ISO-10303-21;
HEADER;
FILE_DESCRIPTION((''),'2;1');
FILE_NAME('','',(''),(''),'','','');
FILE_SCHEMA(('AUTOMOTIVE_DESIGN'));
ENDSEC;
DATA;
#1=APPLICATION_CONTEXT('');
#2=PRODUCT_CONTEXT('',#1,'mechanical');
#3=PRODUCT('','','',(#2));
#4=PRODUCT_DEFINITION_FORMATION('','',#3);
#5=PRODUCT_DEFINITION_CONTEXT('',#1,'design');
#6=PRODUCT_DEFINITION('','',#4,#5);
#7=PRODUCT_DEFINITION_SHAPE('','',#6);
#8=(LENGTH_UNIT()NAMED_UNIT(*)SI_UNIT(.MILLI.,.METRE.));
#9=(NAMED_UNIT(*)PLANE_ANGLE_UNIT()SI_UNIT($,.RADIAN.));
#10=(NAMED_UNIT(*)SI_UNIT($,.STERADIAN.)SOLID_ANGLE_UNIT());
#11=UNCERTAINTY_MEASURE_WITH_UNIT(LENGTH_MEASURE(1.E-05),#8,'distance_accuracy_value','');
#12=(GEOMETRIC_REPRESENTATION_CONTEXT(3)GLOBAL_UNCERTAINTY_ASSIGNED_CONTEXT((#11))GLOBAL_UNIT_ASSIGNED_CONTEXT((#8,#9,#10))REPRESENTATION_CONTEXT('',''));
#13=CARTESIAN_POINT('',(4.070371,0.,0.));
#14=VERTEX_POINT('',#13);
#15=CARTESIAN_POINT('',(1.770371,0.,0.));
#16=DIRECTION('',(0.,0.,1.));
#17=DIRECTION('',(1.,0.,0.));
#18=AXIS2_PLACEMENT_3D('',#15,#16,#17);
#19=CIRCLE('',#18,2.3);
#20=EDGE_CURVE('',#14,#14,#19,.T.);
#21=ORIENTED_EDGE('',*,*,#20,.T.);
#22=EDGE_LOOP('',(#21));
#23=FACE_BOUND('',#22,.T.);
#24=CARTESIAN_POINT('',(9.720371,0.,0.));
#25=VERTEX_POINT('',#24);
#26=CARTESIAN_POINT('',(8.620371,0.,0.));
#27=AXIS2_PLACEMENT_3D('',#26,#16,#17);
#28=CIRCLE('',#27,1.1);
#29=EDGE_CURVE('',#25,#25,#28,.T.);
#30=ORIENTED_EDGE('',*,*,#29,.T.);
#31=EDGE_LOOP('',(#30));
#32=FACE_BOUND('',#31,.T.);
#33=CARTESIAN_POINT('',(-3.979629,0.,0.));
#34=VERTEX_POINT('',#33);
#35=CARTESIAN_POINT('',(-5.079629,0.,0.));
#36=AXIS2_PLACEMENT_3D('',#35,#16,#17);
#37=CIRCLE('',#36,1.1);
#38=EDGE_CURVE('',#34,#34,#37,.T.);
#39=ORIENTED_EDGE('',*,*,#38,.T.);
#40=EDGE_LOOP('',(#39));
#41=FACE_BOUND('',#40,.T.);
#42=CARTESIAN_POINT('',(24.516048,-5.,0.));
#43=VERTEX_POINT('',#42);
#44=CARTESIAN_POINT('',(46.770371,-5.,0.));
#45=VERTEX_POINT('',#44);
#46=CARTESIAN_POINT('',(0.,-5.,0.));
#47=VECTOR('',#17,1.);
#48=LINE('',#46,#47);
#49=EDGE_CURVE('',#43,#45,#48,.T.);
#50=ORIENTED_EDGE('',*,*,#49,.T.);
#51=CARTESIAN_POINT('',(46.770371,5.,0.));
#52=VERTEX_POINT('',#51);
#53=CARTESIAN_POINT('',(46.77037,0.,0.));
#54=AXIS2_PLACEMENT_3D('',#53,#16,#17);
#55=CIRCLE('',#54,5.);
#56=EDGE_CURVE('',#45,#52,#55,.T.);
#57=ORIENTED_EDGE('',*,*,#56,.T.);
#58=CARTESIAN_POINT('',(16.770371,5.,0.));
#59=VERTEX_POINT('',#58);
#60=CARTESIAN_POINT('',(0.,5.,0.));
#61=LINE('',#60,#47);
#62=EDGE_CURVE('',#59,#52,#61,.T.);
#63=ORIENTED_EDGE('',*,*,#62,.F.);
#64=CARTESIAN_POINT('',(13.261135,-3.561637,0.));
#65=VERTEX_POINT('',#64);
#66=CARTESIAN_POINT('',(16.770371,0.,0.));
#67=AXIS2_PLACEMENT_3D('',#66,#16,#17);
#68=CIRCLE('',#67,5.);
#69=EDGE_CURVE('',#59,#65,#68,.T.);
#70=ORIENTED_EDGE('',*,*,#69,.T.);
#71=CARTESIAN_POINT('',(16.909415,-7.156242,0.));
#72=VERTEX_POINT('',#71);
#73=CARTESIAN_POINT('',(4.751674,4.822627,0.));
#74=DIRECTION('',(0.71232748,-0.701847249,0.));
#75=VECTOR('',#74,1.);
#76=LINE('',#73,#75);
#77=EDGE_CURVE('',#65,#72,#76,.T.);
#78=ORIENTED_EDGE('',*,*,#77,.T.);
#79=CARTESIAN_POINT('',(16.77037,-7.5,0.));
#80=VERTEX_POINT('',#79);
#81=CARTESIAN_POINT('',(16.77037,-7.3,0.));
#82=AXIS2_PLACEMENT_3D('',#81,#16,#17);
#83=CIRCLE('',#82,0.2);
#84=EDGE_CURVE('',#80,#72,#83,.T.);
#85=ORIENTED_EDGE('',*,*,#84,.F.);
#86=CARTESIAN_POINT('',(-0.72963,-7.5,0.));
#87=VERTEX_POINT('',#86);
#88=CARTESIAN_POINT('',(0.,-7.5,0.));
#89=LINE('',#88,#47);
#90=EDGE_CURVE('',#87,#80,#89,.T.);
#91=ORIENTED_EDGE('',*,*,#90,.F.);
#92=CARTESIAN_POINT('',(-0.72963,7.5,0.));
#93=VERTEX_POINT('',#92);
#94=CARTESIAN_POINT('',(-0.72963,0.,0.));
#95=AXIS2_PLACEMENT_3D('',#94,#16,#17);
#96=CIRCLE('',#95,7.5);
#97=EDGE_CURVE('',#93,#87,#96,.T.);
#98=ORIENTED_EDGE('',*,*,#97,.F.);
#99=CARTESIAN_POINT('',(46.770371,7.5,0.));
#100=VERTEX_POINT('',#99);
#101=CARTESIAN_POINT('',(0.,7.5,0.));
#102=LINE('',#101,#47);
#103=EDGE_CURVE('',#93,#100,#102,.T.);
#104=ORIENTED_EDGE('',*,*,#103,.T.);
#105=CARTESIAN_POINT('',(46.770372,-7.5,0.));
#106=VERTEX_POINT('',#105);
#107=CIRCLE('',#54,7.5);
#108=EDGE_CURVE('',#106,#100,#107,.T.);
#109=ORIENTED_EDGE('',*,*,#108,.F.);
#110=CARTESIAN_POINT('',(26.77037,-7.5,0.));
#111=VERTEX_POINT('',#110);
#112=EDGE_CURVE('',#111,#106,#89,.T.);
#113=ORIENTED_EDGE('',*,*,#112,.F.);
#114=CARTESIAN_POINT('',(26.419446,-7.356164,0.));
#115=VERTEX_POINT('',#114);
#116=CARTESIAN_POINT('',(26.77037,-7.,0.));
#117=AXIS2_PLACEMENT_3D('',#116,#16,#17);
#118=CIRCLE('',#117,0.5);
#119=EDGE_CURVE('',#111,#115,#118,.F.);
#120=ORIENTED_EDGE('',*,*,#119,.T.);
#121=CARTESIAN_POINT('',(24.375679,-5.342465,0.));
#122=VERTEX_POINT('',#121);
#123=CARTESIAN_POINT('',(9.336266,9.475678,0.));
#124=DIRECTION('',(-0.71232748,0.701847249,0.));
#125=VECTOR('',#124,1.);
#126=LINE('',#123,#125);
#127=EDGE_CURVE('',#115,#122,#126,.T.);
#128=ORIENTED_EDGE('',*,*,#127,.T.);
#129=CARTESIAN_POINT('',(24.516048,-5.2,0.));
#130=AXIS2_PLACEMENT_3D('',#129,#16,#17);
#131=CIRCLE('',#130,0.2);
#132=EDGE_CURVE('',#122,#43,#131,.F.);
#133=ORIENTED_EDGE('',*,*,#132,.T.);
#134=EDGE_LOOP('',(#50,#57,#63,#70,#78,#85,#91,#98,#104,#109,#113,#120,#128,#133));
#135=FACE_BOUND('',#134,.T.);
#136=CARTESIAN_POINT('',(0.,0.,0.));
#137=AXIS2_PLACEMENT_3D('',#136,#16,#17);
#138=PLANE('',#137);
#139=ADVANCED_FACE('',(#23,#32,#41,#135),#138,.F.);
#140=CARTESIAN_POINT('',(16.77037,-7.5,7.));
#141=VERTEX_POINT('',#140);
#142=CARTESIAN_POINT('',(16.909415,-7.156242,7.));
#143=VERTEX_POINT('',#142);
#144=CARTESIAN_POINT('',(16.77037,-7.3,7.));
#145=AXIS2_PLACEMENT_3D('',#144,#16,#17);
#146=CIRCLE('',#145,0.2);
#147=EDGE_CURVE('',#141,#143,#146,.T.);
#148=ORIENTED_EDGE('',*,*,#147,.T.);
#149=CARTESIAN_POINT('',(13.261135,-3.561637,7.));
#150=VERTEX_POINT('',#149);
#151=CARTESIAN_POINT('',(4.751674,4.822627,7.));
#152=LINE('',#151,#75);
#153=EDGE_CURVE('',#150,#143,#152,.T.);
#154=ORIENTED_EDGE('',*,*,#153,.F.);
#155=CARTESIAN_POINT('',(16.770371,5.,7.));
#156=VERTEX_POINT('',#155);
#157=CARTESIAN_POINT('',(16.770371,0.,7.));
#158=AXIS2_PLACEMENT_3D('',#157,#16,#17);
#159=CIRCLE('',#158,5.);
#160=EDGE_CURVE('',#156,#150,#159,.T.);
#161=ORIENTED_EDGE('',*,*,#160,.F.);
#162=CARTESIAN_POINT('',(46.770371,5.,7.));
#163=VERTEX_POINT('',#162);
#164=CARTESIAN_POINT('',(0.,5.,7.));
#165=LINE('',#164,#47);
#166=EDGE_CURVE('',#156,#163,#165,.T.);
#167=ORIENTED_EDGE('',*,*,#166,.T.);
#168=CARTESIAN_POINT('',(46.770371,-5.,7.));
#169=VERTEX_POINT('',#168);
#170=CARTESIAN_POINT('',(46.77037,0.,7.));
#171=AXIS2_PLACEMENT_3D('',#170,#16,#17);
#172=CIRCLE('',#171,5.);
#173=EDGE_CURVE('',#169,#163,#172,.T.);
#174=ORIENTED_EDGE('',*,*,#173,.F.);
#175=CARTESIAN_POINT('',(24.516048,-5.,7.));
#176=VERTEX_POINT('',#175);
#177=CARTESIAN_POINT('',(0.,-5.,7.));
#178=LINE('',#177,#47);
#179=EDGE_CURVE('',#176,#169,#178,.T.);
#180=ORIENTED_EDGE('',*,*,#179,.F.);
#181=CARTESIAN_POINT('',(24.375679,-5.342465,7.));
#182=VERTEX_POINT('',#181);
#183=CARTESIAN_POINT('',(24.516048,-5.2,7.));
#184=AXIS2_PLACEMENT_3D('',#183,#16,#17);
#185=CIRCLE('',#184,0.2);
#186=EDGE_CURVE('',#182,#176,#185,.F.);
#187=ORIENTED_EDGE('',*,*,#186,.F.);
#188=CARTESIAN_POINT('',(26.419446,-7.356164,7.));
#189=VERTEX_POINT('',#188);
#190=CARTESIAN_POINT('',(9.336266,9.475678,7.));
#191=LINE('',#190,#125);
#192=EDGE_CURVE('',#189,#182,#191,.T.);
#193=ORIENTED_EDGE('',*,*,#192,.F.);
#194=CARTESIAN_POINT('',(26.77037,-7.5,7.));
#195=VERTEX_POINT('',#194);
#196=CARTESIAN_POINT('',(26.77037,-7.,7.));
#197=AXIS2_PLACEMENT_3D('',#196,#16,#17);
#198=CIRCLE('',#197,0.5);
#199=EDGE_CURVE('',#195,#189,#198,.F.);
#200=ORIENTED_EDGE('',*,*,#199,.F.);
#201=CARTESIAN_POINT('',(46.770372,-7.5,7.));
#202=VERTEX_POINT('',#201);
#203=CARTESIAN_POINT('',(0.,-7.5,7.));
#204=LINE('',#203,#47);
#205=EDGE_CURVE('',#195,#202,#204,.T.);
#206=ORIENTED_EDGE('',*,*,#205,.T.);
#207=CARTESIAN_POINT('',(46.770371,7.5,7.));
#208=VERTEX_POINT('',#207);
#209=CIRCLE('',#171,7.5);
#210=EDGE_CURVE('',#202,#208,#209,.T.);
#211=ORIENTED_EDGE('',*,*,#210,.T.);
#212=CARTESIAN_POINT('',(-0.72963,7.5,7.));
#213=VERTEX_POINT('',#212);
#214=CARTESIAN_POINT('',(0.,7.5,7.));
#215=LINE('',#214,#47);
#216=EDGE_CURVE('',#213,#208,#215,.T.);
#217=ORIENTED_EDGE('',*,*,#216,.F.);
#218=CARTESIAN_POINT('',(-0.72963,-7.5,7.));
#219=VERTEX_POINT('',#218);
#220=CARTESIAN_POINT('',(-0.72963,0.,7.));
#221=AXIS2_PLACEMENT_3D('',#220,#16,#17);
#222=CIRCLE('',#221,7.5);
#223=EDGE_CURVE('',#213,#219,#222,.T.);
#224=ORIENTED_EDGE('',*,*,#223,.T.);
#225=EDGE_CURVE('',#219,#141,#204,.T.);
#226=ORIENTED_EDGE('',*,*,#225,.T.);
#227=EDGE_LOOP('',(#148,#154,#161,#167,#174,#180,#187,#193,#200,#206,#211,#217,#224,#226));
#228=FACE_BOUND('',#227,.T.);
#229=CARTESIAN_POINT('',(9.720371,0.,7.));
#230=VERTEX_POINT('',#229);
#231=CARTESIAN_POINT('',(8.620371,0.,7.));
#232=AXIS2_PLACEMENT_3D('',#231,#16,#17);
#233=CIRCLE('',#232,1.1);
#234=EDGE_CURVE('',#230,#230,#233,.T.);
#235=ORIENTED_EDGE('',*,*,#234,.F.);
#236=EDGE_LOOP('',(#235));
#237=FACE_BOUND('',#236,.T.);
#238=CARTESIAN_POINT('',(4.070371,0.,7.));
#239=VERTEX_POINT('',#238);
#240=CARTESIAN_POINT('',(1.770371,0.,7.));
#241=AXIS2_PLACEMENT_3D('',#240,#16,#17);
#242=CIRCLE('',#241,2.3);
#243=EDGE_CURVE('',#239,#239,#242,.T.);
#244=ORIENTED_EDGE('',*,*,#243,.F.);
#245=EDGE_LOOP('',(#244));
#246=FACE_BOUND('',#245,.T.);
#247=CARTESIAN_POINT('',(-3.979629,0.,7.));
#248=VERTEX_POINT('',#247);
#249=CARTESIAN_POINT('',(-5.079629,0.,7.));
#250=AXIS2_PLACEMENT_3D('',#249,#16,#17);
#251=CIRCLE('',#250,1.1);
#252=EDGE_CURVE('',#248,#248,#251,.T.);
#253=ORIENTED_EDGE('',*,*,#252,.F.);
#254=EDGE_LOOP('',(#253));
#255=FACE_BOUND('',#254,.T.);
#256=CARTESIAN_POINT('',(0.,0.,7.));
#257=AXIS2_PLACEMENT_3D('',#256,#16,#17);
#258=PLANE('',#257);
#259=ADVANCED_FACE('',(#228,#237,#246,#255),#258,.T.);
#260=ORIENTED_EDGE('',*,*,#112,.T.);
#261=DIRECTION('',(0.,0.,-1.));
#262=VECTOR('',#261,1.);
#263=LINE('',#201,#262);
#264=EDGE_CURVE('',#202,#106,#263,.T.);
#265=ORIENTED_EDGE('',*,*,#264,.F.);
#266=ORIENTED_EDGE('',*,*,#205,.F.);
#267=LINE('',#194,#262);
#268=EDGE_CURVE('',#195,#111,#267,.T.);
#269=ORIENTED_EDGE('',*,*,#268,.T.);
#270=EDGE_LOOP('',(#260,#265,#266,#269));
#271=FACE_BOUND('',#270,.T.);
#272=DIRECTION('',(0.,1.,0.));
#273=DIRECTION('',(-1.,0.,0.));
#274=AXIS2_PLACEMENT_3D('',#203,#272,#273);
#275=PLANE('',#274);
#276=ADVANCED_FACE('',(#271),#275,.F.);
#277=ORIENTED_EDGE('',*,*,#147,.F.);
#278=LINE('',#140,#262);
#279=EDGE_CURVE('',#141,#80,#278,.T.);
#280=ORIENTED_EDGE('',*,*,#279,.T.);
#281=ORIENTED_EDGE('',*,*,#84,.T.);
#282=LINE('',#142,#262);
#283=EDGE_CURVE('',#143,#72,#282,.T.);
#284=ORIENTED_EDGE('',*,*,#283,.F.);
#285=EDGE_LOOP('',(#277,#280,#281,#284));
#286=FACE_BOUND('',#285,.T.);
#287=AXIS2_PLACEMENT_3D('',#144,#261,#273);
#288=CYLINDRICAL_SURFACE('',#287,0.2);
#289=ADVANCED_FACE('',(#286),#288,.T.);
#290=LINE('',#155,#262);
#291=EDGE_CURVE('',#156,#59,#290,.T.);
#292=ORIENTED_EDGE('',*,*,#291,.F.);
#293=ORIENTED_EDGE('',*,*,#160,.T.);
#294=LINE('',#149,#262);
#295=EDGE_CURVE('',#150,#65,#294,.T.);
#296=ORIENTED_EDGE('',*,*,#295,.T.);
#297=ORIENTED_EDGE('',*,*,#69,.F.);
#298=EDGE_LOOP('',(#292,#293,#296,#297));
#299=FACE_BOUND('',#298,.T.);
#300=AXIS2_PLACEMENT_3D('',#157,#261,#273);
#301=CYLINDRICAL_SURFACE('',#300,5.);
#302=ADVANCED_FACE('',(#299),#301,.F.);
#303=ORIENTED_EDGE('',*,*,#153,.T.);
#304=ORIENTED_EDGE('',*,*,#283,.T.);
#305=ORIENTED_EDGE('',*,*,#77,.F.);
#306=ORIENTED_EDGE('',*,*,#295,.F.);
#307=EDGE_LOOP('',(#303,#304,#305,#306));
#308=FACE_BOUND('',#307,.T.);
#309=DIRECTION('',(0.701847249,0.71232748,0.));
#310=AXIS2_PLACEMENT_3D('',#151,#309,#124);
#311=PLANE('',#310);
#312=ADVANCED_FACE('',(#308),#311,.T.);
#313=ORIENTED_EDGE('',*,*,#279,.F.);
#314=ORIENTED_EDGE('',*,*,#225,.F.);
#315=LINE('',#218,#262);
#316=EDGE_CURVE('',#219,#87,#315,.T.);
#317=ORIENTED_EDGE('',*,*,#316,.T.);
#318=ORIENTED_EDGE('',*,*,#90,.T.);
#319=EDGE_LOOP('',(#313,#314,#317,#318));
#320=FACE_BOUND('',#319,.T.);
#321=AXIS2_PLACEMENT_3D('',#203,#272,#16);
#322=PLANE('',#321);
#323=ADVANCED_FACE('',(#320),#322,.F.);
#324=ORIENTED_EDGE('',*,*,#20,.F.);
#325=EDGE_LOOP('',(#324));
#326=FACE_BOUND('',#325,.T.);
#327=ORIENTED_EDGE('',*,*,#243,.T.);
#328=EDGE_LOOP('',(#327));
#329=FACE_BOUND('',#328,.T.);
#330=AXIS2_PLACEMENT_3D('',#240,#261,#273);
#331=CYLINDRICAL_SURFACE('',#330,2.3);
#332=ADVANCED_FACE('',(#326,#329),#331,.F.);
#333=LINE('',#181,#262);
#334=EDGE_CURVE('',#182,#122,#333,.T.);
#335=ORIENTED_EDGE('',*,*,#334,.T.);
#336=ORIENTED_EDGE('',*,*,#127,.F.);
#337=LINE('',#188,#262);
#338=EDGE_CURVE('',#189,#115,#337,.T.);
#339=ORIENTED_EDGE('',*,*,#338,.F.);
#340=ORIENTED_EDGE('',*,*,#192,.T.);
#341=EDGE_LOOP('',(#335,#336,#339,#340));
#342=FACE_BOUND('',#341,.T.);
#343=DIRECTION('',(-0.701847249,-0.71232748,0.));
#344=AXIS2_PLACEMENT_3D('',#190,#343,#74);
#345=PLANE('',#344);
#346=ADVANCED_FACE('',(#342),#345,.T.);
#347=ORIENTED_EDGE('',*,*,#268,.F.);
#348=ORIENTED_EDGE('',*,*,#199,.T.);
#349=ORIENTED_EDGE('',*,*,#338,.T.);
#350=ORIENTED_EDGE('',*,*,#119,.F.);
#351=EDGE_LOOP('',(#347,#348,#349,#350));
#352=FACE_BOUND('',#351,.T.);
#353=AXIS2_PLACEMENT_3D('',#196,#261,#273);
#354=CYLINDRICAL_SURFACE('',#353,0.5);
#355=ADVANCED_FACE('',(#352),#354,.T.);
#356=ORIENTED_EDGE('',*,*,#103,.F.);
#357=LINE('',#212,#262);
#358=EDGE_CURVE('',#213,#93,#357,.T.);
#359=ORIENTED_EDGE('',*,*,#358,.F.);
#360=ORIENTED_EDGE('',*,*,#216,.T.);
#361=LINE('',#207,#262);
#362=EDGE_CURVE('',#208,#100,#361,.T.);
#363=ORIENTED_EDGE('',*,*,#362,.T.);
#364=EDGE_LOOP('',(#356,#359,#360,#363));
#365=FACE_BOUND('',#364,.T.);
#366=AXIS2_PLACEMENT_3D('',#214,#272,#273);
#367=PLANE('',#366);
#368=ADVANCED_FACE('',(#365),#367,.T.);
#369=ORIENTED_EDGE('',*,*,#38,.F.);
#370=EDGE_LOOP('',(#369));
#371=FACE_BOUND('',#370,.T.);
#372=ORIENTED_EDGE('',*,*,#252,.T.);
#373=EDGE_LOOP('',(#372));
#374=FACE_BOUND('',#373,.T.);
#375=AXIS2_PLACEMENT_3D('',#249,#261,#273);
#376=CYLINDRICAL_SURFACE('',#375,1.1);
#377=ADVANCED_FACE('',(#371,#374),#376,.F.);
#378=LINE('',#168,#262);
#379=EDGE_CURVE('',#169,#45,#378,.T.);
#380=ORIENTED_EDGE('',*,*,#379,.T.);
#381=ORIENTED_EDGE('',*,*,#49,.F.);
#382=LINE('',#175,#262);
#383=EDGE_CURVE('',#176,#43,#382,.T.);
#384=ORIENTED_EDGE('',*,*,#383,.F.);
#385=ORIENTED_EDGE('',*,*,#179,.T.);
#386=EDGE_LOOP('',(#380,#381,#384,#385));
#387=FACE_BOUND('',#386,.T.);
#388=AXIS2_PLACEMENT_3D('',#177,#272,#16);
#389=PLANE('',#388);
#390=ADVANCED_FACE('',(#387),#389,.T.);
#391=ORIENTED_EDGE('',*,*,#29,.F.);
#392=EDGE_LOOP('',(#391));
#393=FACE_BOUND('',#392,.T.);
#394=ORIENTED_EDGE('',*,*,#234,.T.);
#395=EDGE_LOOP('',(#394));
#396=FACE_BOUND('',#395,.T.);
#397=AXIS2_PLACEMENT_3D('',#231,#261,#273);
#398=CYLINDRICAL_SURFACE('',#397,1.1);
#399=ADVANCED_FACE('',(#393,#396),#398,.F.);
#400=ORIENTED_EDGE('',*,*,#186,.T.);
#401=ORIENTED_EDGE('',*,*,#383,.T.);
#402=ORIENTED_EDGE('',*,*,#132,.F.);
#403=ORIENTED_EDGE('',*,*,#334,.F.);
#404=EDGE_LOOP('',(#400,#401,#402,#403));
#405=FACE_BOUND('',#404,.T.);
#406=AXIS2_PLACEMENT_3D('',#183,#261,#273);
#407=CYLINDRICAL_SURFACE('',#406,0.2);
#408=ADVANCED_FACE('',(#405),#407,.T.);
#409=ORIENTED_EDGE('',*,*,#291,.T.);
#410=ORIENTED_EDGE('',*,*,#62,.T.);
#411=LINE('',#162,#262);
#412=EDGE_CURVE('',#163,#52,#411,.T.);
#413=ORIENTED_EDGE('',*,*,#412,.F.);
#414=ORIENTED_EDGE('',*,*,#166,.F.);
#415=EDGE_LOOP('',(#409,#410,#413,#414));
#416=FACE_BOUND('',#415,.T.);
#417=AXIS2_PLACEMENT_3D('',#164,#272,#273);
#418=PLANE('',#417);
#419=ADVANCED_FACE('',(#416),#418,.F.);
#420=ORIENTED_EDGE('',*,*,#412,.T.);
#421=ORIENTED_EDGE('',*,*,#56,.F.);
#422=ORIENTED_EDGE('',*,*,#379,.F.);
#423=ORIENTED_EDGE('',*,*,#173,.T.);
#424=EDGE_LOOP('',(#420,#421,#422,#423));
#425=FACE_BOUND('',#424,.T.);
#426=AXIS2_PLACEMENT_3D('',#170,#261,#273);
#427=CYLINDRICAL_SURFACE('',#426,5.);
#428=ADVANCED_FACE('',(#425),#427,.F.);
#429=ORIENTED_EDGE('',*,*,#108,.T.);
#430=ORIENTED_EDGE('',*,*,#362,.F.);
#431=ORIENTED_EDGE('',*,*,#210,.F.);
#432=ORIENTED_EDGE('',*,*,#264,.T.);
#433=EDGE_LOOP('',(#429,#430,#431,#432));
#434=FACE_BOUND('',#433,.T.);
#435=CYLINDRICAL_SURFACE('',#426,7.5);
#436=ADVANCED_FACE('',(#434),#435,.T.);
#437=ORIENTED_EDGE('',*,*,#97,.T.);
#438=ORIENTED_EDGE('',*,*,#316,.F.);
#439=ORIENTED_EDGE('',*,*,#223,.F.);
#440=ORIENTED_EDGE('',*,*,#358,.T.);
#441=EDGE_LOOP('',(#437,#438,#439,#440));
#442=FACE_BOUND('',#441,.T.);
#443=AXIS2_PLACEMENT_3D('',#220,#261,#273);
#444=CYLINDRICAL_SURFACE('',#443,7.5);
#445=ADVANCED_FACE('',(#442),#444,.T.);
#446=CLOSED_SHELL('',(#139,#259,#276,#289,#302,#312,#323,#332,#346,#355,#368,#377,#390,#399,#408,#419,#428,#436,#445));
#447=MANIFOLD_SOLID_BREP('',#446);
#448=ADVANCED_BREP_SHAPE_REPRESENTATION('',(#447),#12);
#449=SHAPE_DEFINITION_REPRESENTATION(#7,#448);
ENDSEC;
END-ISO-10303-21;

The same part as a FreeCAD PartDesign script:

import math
import FreeCAD as App
import Part
import Sketcher

doc = App.newDocument("Part")
body = doc.addObject("PartDesign::Body", "Body")

# Sketch on XY plane
sketch1 = body.newObject("Sketcher::SketchObject", "Sketch")
sketch1.AttachmentSupport = (doc.getObject("XY_Plane"), [""])
sketch1.MapMode = "FlatFace"
sketch1.addGeometry([
    Part.LineSegment(App.Vector(16.77, 5, 0), App.Vector(46.77, 5, 0)),  # 0
    Part.ArcOfCircle(Part.Circle(App.Vector(46.77, 0, 0), App.Vector(0, 0, 1), 5), math.radians(-90), math.radians(90)),  # 1
    Part.LineSegment(App.Vector(46.77, -5, 0), App.Vector(24.52, -5, 0)),  # 2
    Part.ArcOfCircle(Part.Circle(App.Vector(24.52, -5.2, 0), App.Vector(0, 0, 1), 0.2), math.radians(90), math.radians(225)),  # 3
    Part.LineSegment(App.Vector(24.38, -5.34, 0), App.Vector(26.42, -7.36, 0)),  # 4
    Part.ArcOfCircle(Part.Circle(App.Vector(26.77, -7, 0), App.Vector(0, 0, 1), 0.5), math.radians(-135), math.radians(-90)),  # 5
    Part.LineSegment(App.Vector(26.77, -7.5, 0), App.Vector(46.77, -7.5, 0)),  # 6
    Part.ArcOfCircle(Part.Circle(App.Vector(46.77, 0, 0), App.Vector(0, 0, 1), 7.5), math.radians(-90), math.radians(90)),  # 7
    Part.LineSegment(App.Vector(46.77, 7.5, 0), App.Vector(-0.73, 7.5, 0)),  # 8
    Part.ArcOfCircle(Part.Circle(App.Vector(-0.73, 0, 0), App.Vector(0, 0, 1), 7.5), math.radians(90), math.radians(270)),  # 9
    Part.LineSegment(App.Vector(-0.73, -7.5, 0), App.Vector(16.77, -7.5, 0)),  # 10
    Part.ArcOfCircle(Part.Circle(App.Vector(16.77, -7.3, 0), App.Vector(0, 0, 1), 0.2), math.radians(-90), math.radians(46)),  # 11
    Part.LineSegment(App.Vector(16.91, -7.16, 0), App.Vector(13.26, -3.56, 0)),  # 12
    Part.ArcOfCircle(Part.Circle(App.Vector(16.77, 0, 0), App.Vector(0, 0, 1), 5), math.radians(90), math.radians(225)),  # 13
    Part.Circle(App.Vector(-5.08, 0, 0), App.Vector(0, 0, 1), 1.1),  # 14
    Part.Circle(App.Vector(1.77, 0, 0), App.Vector(0, 0, 1), 2.3),  # 15
    Part.Circle(App.Vector(8.62, 0, 0), App.Vector(0, 0, 1), 1.1),  # 16
], False)
sketch1.addConstraint([
    Sketcher.Constraint("Tangent", 0, 2, 1, 2),
    Sketcher.Constraint("Tangent", 1, 1, 2, 1),
    Sketcher.Constraint("Tangent", 2, 2, 3, 1),
    Sketcher.Constraint("Tangent", 3, 2, 4, 1),
    Sketcher.Constraint("Tangent", 4, 2, 5, 1),
    Sketcher.Constraint("Tangent", 5, 2, 6, 1),
    Sketcher.Constraint("Tangent", 6, 2, 7, 1),
    Sketcher.Constraint("Tangent", 7, 2, 8, 1),
    Sketcher.Constraint("Tangent", 8, 2, 9, 1),
    Sketcher.Constraint("Tangent", 9, 2, 10, 1),
    Sketcher.Constraint("Tangent", 10, 2, 11, 1),
    Sketcher.Constraint("Coincident", 11, 2, 12, 1),
    Sketcher.Constraint("Tangent", 12, 2, 13, 2),
    Sketcher.Constraint("Tangent", 13, 1, 0, 1),
    Sketcher.Constraint("Horizontal", 0),
    Sketcher.Constraint("Horizontal", 2),
    Sketcher.Constraint("Horizontal", 6),
    Sketcher.Constraint("Horizontal", 8),
    Sketcher.Constraint("Horizontal", 10),
    Sketcher.Constraint("Coincident", 7, 3, 1, 3),
    Sketcher.Constraint("Equal", 7, 9),
    Sketcher.Constraint("Equal", 3, 11),
    Sketcher.Constraint("Equal", 1, 13),
    Sketcher.Constraint("Equal", 14, 16),
    Sketcher.Constraint("PointOnObject", 1, 3, -1),
    Sketcher.Constraint("PointOnObject", 14, 3, -1),
    Sketcher.Constraint("PointOnObject", 15, 3, -1),
    Sketcher.Constraint("PointOnObject", 16, 3, -1),
    Sketcher.Constraint("Parallel", 4, 12),
    Sketcher.Constraint("Vertical", 11, 3, 13, 3),
    Sketcher.Constraint("Radius", 1, 5.0),
    Sketcher.Constraint("Diameter", 14, 2.2),
    Sketcher.Constraint("Diameter", 15, 4.6),
    Sketcher.Constraint("Radius", 3, 0.2),
    Sketcher.Constraint("Radius", 5, 0.5),
    Sketcher.Constraint("Radius", 7, 7.5),
    Sketcher.Constraint("DistanceX", 0, 1, 0, 2, 30.0),
    Sketcher.Constraint("DistanceX", 6, 1, 6, 2, 20.000002),
    Sketcher.Constraint("DistanceX", 8, 2, 8, 1, 47.500001),
    Sketcher.Constraint("DistanceX", 15, 3, 13, 3, 15.000001),
    Sketcher.Constraint("DistanceX", 14, 3, 16, 3, 13.7),
    Sketcher.Constraint("DistanceX", 14, 3, 9, 3, 4.349999),
    Sketcher.Constraint("DistanceX", -1, 1, 1, 3, 46.77037),
    Sketcher.Constraint("DistanceY", 11, 2, -1, 1, 7.156242),
])
pad1 = body.newObject("PartDesign::Pad", "Pad")
pad1.Profile = sketch1
pad1.Length = 7

doc.recompute()
